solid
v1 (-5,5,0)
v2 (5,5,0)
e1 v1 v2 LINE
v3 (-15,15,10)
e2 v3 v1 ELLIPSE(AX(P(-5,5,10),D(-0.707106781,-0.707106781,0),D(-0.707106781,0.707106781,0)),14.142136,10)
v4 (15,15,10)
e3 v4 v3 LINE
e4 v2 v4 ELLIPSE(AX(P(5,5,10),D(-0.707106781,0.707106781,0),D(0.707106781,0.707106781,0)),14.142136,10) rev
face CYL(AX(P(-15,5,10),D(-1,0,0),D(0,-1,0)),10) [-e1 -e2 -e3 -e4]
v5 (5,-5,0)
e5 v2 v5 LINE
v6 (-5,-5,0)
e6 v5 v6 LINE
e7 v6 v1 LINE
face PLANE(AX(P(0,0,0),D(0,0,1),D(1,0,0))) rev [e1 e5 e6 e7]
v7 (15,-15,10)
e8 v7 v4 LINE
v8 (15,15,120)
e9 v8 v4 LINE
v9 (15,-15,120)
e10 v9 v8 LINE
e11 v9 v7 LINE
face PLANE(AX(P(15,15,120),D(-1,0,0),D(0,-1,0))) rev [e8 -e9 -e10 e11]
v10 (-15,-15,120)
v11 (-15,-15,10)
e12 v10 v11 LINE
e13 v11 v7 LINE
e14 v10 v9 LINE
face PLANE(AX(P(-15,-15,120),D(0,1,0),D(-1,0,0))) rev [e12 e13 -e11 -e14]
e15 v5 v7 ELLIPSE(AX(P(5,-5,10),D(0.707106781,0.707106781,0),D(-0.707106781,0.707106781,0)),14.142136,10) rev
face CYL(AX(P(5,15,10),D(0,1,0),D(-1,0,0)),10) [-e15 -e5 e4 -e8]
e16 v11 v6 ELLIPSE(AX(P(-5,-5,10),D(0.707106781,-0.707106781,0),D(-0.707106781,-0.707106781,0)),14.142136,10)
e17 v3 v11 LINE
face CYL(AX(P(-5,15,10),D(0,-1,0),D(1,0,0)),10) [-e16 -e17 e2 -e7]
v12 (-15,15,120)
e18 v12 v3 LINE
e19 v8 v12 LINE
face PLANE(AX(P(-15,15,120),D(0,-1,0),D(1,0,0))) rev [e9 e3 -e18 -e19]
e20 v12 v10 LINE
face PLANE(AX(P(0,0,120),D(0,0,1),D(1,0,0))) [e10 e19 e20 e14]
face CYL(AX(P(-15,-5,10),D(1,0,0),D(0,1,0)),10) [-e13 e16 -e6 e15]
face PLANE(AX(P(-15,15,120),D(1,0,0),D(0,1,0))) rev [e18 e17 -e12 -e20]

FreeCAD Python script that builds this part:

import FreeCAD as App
import Part
import Sketcher
Q = App.Units.Quantity


def edges_at(feature, points):
    """Names of the edges that pass closest to the given points."""
    edges = feature.Shape.Edges
    near = lambda p: min(range(len(edges)), key=lambda i: edges[i].distToShape(Part.Vertex(*p))[0])
    return sorted({f"Edge{near(p) + 1}" for p in points})


def add_polygon(sketch, points):
    """Adds a closed chain of lines whose ends are joined by coincident constraints."""
    first, n = sketch.GeometryCount, len(points)
    for a, b in zip(points, points[1:] + points[:1]):
        sketch.addGeometry(Part.LineSegment(App.Vector(*a, 0), App.Vector(*b, 0)), False)
    for i in range(n):
        sketch.addConstraint(Sketcher.Constraint("Coincident", first + i, 2, first + (i + 1) % n, 1))

doc = App.newDocument("Part")
body = doc.addObject("PartDesign::Body", "Body")

# Sketch on XY plane
sketch1 = body.newObject("Sketcher::SketchObject", "Sketch")
sketch1.AttachmentSupport = (doc.getObject("XY_Plane"), [""])
sketch1.MapMode = "FlatFace"
add_polygon(sketch1, [(-15, 15), (-15, -15), (15, -15), (15, 15)])  # lines 0-3
sketch1.addConstraint(Sketcher.Constraint("Vertical", 0))
sketch1.addConstraint(Sketcher.Constraint("Horizontal", 1))
sketch1.addConstraint(Sketcher.Constraint("Vertical", 2))
sketch1.addConstraint(Sketcher.Constraint("Horizontal", 3))
sketch1.addConstraint(Sketcher.Constraint("Symmetric", 0, 2, 2, 2, -1, 1))
sketch1.addConstraint(Sketcher.Constraint("Equal", 3, 0))
sketch1.addConstraint(Sketcher.Constraint("DistanceX", 1, 1, 1, 2, Q("30 mm")))
pad1 = body.newObject("PartDesign::Pad", "Pad")
pad1.Profile = sketch1
pad1.Length = 120
doc.recompute()

fillet = body.newObject("PartDesign::Fillet", "Fillet")
fillet.Base = (pad1, edges_at(pad1, [
    (0, 15, 0),
    (15, 0, 0),
    (0, -15, 0),
    (-15, 0, 0),
]))
fillet.Radius = 10

doc.recompute()
